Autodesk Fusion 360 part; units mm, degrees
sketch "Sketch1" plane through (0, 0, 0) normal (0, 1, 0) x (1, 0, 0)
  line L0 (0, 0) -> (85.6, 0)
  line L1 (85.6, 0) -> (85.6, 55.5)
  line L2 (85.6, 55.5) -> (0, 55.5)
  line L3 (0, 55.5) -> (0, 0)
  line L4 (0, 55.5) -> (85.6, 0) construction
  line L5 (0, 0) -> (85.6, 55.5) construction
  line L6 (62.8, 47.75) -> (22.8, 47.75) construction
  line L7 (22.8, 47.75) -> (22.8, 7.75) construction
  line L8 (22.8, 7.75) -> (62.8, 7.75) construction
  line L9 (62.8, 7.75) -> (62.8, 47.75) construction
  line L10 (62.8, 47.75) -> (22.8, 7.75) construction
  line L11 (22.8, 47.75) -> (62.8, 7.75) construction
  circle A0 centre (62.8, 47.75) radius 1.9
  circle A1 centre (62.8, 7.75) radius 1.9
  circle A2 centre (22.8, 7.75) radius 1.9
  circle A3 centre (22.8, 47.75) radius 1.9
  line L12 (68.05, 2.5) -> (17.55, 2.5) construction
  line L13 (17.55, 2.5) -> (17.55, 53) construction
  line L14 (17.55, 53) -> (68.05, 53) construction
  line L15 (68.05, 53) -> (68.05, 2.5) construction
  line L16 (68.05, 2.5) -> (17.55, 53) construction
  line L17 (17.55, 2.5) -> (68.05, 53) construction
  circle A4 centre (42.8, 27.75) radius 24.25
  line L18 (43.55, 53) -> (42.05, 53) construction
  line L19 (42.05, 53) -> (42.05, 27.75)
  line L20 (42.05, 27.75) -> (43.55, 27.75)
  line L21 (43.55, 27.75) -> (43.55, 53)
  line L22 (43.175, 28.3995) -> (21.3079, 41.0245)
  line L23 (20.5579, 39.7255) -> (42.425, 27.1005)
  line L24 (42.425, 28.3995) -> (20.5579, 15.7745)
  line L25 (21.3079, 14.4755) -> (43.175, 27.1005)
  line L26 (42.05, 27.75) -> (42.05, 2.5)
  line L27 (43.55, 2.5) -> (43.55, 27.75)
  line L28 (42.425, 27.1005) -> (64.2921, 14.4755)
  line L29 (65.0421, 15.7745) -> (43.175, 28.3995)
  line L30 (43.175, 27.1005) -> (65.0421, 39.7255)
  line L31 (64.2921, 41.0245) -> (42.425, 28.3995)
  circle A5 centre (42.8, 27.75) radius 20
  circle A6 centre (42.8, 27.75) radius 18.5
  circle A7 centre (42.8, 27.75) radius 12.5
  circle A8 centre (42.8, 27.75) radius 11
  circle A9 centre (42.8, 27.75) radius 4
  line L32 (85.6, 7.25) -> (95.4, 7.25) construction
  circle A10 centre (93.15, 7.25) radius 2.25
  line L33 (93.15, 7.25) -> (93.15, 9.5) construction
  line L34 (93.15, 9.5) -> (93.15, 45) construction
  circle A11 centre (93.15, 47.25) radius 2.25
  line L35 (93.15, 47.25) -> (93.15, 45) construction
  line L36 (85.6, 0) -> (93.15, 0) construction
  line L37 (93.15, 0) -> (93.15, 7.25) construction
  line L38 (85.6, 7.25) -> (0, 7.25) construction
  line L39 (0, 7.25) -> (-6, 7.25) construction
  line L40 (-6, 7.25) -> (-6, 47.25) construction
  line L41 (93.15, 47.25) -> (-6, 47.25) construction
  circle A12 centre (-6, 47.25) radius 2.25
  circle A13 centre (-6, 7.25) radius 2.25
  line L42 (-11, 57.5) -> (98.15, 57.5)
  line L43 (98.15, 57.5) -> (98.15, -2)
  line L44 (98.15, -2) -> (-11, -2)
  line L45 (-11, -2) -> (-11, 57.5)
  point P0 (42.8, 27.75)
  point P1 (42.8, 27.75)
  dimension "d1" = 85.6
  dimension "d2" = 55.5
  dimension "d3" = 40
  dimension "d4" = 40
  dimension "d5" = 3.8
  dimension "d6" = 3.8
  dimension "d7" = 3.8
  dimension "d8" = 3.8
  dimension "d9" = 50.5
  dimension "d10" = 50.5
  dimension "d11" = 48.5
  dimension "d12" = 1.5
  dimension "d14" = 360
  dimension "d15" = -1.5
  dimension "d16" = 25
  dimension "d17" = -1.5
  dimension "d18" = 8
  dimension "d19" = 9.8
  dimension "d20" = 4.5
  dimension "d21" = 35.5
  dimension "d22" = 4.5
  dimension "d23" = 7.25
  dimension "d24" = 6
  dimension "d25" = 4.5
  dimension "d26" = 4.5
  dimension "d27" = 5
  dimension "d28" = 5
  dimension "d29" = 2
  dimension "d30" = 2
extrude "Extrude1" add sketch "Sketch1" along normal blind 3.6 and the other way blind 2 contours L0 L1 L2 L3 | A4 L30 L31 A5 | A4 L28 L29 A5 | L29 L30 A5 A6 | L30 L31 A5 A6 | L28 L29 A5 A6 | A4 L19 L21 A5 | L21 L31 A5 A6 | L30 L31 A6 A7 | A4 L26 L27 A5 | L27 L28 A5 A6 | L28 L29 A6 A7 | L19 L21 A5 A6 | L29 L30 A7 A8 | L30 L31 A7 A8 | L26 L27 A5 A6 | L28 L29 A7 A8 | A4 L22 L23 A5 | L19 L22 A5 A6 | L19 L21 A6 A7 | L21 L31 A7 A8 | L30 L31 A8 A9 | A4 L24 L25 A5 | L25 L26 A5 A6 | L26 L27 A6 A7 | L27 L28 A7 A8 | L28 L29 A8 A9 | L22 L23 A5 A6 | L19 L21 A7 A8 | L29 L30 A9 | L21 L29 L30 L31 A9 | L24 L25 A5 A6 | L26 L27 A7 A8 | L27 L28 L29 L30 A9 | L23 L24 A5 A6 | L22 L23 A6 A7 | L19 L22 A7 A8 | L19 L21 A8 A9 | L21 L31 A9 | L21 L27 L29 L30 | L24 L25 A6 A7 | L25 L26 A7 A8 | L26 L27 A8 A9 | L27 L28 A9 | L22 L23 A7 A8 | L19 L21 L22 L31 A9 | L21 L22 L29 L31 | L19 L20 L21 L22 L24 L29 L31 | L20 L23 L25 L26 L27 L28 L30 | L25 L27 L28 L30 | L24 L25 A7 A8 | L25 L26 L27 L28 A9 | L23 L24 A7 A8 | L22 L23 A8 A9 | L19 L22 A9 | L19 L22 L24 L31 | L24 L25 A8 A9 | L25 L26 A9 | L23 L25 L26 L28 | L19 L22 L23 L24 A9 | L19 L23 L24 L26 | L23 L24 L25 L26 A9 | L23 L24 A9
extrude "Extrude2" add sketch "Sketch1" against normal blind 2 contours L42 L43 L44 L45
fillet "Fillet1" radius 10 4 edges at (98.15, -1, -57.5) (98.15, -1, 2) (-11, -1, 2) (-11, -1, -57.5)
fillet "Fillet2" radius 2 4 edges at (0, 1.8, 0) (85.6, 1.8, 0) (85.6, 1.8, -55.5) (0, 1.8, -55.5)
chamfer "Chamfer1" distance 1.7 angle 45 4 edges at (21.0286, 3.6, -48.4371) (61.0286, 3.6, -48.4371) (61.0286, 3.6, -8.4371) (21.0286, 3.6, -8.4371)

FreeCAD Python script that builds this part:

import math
import FreeCAD as App
import Part
import Sketcher
from FreeCAD import Vector
Q = App.Units.Quantity


def edges_at(feature, points):
    """Names of the edges that pass closest to the given points."""
    edges = feature.Shape.Edges
    near = lambda p: min(range(len(edges)), key=lambda i: edges[i].distToShape(Part.Vertex(*p))[0])
    return sorted({f"Edge{near(p) + 1}" for p in points})


def add_polygon(sketch, points):
    """Adds a closed chain of lines whose ends are joined by coincident constraints."""
    first, n = sketch.GeometryCount, len(points)
    for a, b in zip(points, points[1:] + points[:1]):
        sketch.addGeometry(Part.LineSegment(App.Vector(*a, 0), App.Vector(*b, 0)), False)
    for i in range(n):
        sketch.addConstraint(Sketcher.Constraint("Coincident", first + i, 2, first + (i + 1) % n, 1))

doc = App.newDocument("Part")
body = doc.addObject("PartDesign::Body", "Body")

# Sketch on XZ plane
sketch1 = body.newObject("Sketcher::SketchObject", "Sketch")
sketch1.AttachmentSupport = (doc.getObject("XZ_Plane"), [""])
sketch1.MapMode = "FlatFace"
add_polygon(sketch1, [(0, -55.5), (0, 0), (85.6, 0), (85.6, -55.5)])  # lines 0-3
sketch1.addGeometry(Part.Circle(Vector(22.8, -7.75, 0), Vector(0, 0, 1), 1.9), False)  # 4
sketch1.addGeometry(Part.Circle(Vector(62.8, -7.75, 0), Vector(0, 0, 1), 1.9), False)  # 5
sketch1.addGeometry(Part.ArcOfCircle(Part.Circle(Vector(42.8, -27.75, 0), Vector(0, 0, 1), 24.25), math.radians(-28.227769), math.radians(28.227769)), False)  # 6
sketch1.addGeometry(Part.LineSegment(Vector(64.166052, -16.280287, 0), Vector(60.48331, -18.406524, 0)), False)  # 7
sketch1.addGeometry(Part.ArcOfCircle(Part.Circle(Vector(42.8, -27.75, 0), Vector(0, 0, 1), 20), math.radians(-27.850999), math.radians(27.850999)), False)  # 8
sketch1.addGeometry(Part.LineSegment(Vector(60.48331, -37.093476, 0), Vector(64.166052, -39.219713, 0)), False)  # 9
sketch1.addGeometry(Part.ArcOfCircle(Part.Circle(Vector(42.8, -27.75, 0), Vector(0, 0, 1), 24.25), math.radians(-88.227683), math.radians(-31.772325)), False)  # 10
sketch1.addGeometry(Part.LineSegment(Vector(63.416068, -40.518722, 0), Vector(59.733325, -38.392485, 0)), False)  # 11
sketch1.addGeometry(Part.ArcOfCircle(Part.Circle(Vector(42.8, -27.75, 0), Vector(0, 0, 1), 20), math.radians(-87.850904), math.radians(-32.149095)), False)  # 12
sketch1.addGeometry(Part.LineSegment(Vector(43.55, -47.735933, 0), Vector(43.55, -51.988399, 0)), False)  # 13
sketch1.addGeometry(Part.ArcOfCircle(Part.Circle(Vector(42.8, -27.75, 0), Vector(0, 0, 1), 24.25), math.radians(-148.227675), math.radians(-91.772317)), False)  # 14
sketch1.addGeometry(Part.LineSegment(Vector(42.05, -51.988399, 0), Vector(42.05, -47.735933, 0)), False)  # 15
sketch1.addGeometry(Part.ArcOfCircle(Part.Circle(Vector(42.8, -27.75, 0), Vector(0, 0, 1), 20), math.radians(-147.850905), math.radians(-92.149096)), False)  # 16
sketch1.addGeometry(Part.LineSegment(Vector(25.866675, -38.392485, 0), Vector(22.183932, -40.518722, 0)), False)  # 17
sketch1.addGeometry(Part.ArcOfCircle(Part.Circle(Vector(42.8, -27.75, 0), Vector(0, 0, 1), 24.25), math.radians(151.772231), math.radians(208.227769)), False)  # 18
sketch1.addGeometry(Part.LineSegment(Vector(21.433948, -39.219713, 0), Vector(25.11669, -37.093476, 0)), False)  # 19
sketch1.addGeometry(Part.ArcOfCircle(Part.Circle(Vector(42.8, -27.75, 0), Vector(0, 0, 1), 20), math.radians(152.149001), math.radians(207.850999)), False)  # 20
sketch1.addGeometry(Part.LineSegment(Vector(25.11669, -18.406524, 0), Vector(21.433948, -16.280287, 0)), False)  # 21
sketch1.addGeometry(Part.ArcOfCircle(Part.Circle(Vector(42.8, -27.75, 0), Vector(0, 0, 1), 24.25), math.radians(91.772317), math.radians(148.227675)), False)  # 22
sketch1.addGeometry(Part.LineSegment(Vector(22.183932, -14.981278, 0), Vector(25.866675, -17.107515, 0)), False)  # 23
sketch1.addGeometry(Part.ArcOfCircle(Part.Circle(Vector(42.8, -27.75, 0), Vector(0, 0, 1), 20), math.radians(92.149096), math.radians(147.850905)), False)  # 24
sketch1.addGeometry(Part.LineSegment(Vector(42.05, -7.764067, 0), Vector(42.05, -3.511601, 0)), False)  # 25
sketch1.addGeometry(Part.ArcOfCircle(Part.Circle(Vector(42.8, -27.75, 0), Vector(0, 0, 1), 24.25), math.radians(31.772325), math.radians(88.227683)), False)  # 26
sketch1.addGeometry(Part.LineSegment(Vector(43.55, -3.511601, 0), Vector(43.55, -7.764067, 0)), False)  # 27
sketch1.addGeometry(Part.ArcOfCircle(Part.Circle(Vector(42.8, -27.75, 0), Vector(0, 0, 1), 20), math.radians(32.149095), math.radians(87.850904)), False)  # 28
sketch1.addGeometry(Part.LineSegment(Vector(59.733325, -17.107515, 0), Vector(63.416068, -14.981278, 0)), False)  # 29
sketch1.addGeometry(Part.Circle(Vector(22.8, -47.75, 0), Vector(0, 0, 1), 1.9), False)  # 30
sketch1.addGeometry(Part.Circle(Vector(62.8, -47.75, 0), Vector(0, 0, 1), 1.9), False)  # 31
sketch1.addGeometry(Part.ArcOfCircle(Part.Circle(Vector(42.8, -27.75, 0), Vector(0, 0, 1), 18.5), math.radians(-27.67666), math.radians(27.67666)), False)  # 32
sketch1.addGeometry(Part.LineSegment(Vector(59.183284, -19.157095, 0), Vector(53.980802, -22.160755, 0)), False)  # 33
sketch1.addGeometry(Part.ArcOfCircle(Part.Circle(Vector(42.8, -27.75, 0), Vector(0, 0, 1), 12.5), math.radians(-26.56031), math.radians(26.56031)), False)  # 34
sketch1.addGeometry(Part.LineSegment(Vector(53.980802, -33.339245, 0), Vector(59.183284, -36.342905, 0)), False)  # 35
sketch1.addGeometry(Part.LineSegment(Vector(58.433299, -37.641913, 0), Vector(53.230818, -34.638254, 0)), False)  # 36
sketch1.addGeometry(Part.ArcOfCircle(Part.Circle(Vector(42.8, -27.75, 0), Vector(0, 0, 1), 12.5), math.radians(-86.560187), math.radians(-33.439784)), False)  # 37
sketch1.addGeometry(Part.LineSegment(Vector(43.55, -40.22748, 0), Vector(43.55, -46.234791, 0)), False)  # 38
sketch1.addGeometry(Part.ArcOfCircle(Part.Circle(Vector(42.8, -27.75, 0), Vector(0, 0, 1), 18.5), math.radians(-87.676561), math.radians(-32.323434)), False)  # 39
sketch1.addGeometry(Part.LineSegment(Vector(42.05, -46.234791, 0), Vector(42.05, -40.22748, 0)), False)  # 40
sketch1.addGeometry(Part.ArcOfCircle(Part.Circle(Vector(42.8, -27.75, 0), Vector(0, 0, 1), 12.5), math.radians(-146.560216), math.radians(-93.439813)), False)  # 41
sketch1.addGeometry(Part.LineSegment(Vector(32.369182, -34.638254, 0), Vector(27.166701, -37.641913, 0)), False)  # 42
sketch1.addGeometry(Part.ArcOfCircle(Part.Circle(Vector(42.8, -27.75, 0), Vector(0, 0, 1), 18.5), math.radians(-147.676566), math.radians(-92.323439)), False)  # 43
sketch1.addGeometry(Part.LineSegment(Vector(26.416716, -36.342905, 0), Vector(31.619198, -33.339245, 0)), False)  # 44
sketch1.addGeometry(Part.ArcOfCircle(Part.Circle(Vector(42.8, -27.75, 0), Vector(0, 0, 1), 12.5), math.radians(153.43969), math.radians(206.56031)), False)  # 45
sketch1.addGeometry(Part.LineSegment(Vector(31.619198, -22.160755, 0), Vector(26.416716, -19.157095, 0)), False)  # 46
sketch1.addGeometry(Part.ArcOfCircle(Part.Circle(Vector(42.8, -27.75, 0), Vector(0, 0, 1), 18.5), math.radians(152.32334), math.radians(207.67666)), False)  # 47
sketch1.addGeometry(Part.ArcOfCircle(Part.Circle(Vector(42.8, -27.75, 0), Vector(0, 0, 1), 18.5), math.radians(92.323439), math.radians(147.676566)), False)  # 48
sketch1.addGeometry(Part.LineSegment(Vector(27.166701, -17.858087, 0), Vector(32.369182, -20.861746, 0)), False)  # 49
sketch1.addGeometry(Part.ArcOfCircle(Part.Circle(Vector(42.8, -27.75, 0), Vector(0, 0, 1), 12.5), math.radians(93.439813), math.radians(146.560216)), False)  # 50
sketch1.addGeometry(Part.LineSegment(Vector(42.05, -15.27252, 0), Vector(42.05, -9.265209, 0)), False)  # 51
sketch1.addGeometry(Part.ArcOfCircle(Part.Circle(Vector(42.8, -27.75, 0), Vector(0, 0, 1), 18.5), math.radians(32.323434), math.radians(87.676561)), False)  # 52
sketch1.addGeometry(Part.LineSegment(Vector(43.55, -9.265209, 0), Vector(43.55, -15.27252, 0)), False)  # 53
sketch1.addGeometry(Part.ArcOfCircle(Part.Circle(Vector(42.8, -27.75, 0), Vector(0, 0, 1), 12.5), math.radians(33.439784), math.radians(86.560187)), False)  # 54
sketch1.addGeometry(Part.LineSegment(Vector(53.230818, -20.861746, 0), Vector(58.433299, -17.858087, 0)), False)  # 55
sketch1.addGeometry(Part.ArcOfCircle(Part.Circle(Vector(42.8, -27.75, 0), Vector(0, 0, 1), 11), math.radians(-26.09057), math.radians(26.09057)), False)  # 56
sketch1.addGeometry(Part.LineSegment(Vector(52.6791, -22.912295, 0), Vector(46.577658, -26.434971, 0)), False)  # 57
sketch1.addGeometry(Part.ArcOfCircle(Part.Circle(Vector(42.8, -27.75, 0), Vector(0, 0, 1), 4), math.radians(-19.193365), math.radians(19.193365)), False)  # 58
sketch1.addGeometry(Part.LineSegment(Vector(46.577658, -29.065029, 0), Vector(52.6791, -32.587705, 0)), False)  # 59
sketch1.addGeometry(Part.LineSegment(Vector(51.929115, -33.886714, 0), Vector(45.827673, -30.364038, 0)), False)  # 60
sketch1.addGeometry(Part.ArcOfCircle(Part.Circle(Vector(42.8, -27.75, 0), Vector(0, 0, 1), 4), math.radians(-79.193077), math.radians(-40.806729)), False)  # 61
sketch1.addGeometry(Part.LineSegment(Vector(43.55, -31.679058, 0), Vector(43.55, -38.724402, 0)), False)  # 62
sketch1.addGeometry(Part.ArcOfCircle(Part.Circle(Vector(42.8, -27.75, 0), Vector(0, 0, 1), 11), math.radians(-86.090436), math.radians(-33.909524)), False)  # 63
sketch1.addGeometry(Part.LineSegment(Vector(42.05, -38.724402, 0), Vector(42.05, -31.679058, 0)), False)  # 64
sketch1.addGeometry(Part.ArcOfCircle(Part.Circle(Vector(42.8, -27.75, 0), Vector(0, 0, 1), 4), math.radians(-139.193271), math.radians(-100.806923)), False)  # 65
sketch1.addGeometry(Part.LineSegment(Vector(39.772327, -30.364038, 0), Vector(33.670885, -33.886714, 0)), False)  # 66
sketch1.addGeometry(Part.ArcOfCircle(Part.Circle(Vector(42.8, -27.75, 0), Vector(0, 0, 1), 11), math.radians(-146.090476), math.radians(-93.909564)), False)  # 67
sketch1.addGeometry(Part.LineSegment(Vector(32.9209, -32.587705, 0), Vector(39.022342, -29.065029, 0)), False)  # 68
sketch1.addGeometry(Part.ArcOfCircle(Part.Circle(Vector(42.8, -27.75, 0), Vector(0, 0, 1), 4), math.radians(160.806635), math.radians(199.193365)), False)  # 69
sketch1.addGeometry(Part.LineSegment(Vector(39.022342, -26.434971, 0), Vector(32.9209, -22.912295, 0)), False)  # 70
sketch1.addGeometry(Part.ArcOfCircle(Part.Circle(Vector(42.8, -27.75, 0), Vector(0, 0, 1), 11), math.radians(153.90943), math.radians(206.09057)), False)  # 71
sketch1.addGeometry(Part.ArcOfCircle(Part.Circle(Vector(42.8, -27.75, 0), Vector(0, 0, 1), 11), math.radians(93.909564), math.radians(146.090476)), False)  # 72
sketch1.addGeometry(Part.LineSegment(Vector(33.670885, -21.613286, 0), Vector(39.772327, -25.135962, 0)), False)  # 73
sketch1.addGeometry(Part.ArcOfCircle(Part.Circle(Vector(42.8, -27.75, 0), Vector(0, 0, 1), 4), math.radians(100.806923), math.radians(139.193271)), False)  # 74
sketch1.addGeometry(Part.LineSegment(Vector(42.05, -23.820942, 0), Vector(42.05, -16.775598, 0)), False)  # 75
sketch1.addGeometry(Part.ArcOfCircle(Part.Circle(Vector(42.8, -27.75, 0), Vector(0, 0, 1), 11), math.radians(33.909524), math.radians(86.090436)), False)  # 76
sketch1.addGeometry(Part.LineSegment(Vector(43.55, -16.775598, 0), Vector(43.55, -23.820942, 0)), False)  # 77
sketch1.addGeometry(Part.ArcOfCircle(Part.Circle(Vector(42.8, -27.75, 0), Vector(0, 0, 1), 4), math.radians(40.806729), math.radians(79.193077)), False)  # 78
sketch1.addGeometry(Part.LineSegment(Vector(45.827673, -25.135962, 0), Vector(51.929115, -21.613286, 0)), False)  # 79
sketch1.addConstraint(Sketcher.Constraint("Coincident", 6, 2, 7, 1))
sketch1.addConstraint(Sketcher.Constraint("Coincident", 7, 2, 8, 2))
sketch1.addConstraint(Sketcher.Constraint("Coincident", 8, 1, 9, 1))
sketch1.addConstraint(Sketcher.Constraint("Coincident", 9, 2, 6, 1))
sketch1.addConstraint(Sketcher.Constraint("Coincident", 10, 2, 11, 1))
sketch1.addConstraint(Sketcher.Constraint("Coincident", 11, 2, 12, 2))
sketch1.addConstraint(Sketcher.Constraint("Coincident", 12, 1, 13, 1))
sketch1.addConstraint(Sketcher.Constraint("Coincident", 13, 2, 10, 1))
sketch1.addConstraint(Sketcher.Constraint("Coincident", 14, 2, 15, 1))
sketch1.addConstraint(Sketcher.Constraint("Coincident", 15, 2, 16, 2))
sketch1.addConstraint(Sketcher.Constraint("Coincident", 16, 1, 17, 1))
sketch1.addConstraint(Sketcher.Constraint("Coincident", 17, 2, 14, 1))
sketch1.addConstraint(Sketcher.Constraint("Coincident", 18, 2, 19, 1))
sketch1.addConstraint(Sketcher.Constraint("Coincident", 19, 2, 20, 2))
sketch1.addConstraint(Sketcher.Constraint("Coincident", 20, 1, 21, 1))
sketch1.addConstraint(Sketcher.Constraint("Coincident", 21, 2, 18, 1))
sketch1.addConstraint(Sketcher.Constraint("Coincident", 22, 2, 23, 1))
sketch1.addConstraint(Sketcher.Constraint("Coincident", 23, 2, 24, 2))
sketch1.addConstraint(Sketcher.Constraint("Coincident", 24, 1, 25, 1))
sketch1.addConstraint(Sketcher.Constraint("Coincident", 25, 2, 22, 1))
sketch1.addConstraint(Sketcher.Constraint("Coincident", 26, 2, 27, 1))
sketch1.addConstraint(Sketcher.Constraint("Coincident", 27, 2, 28, 2))
sketch1.addConstraint(Sketcher.Constraint("Coincident", 28, 1, 29, 1))
sketch1.addConstraint(Sketcher.Constraint("Coincident", 29, 2, 26, 1))
sketch1.addConstraint(Sketcher.Constraint("Coincident", 32, 2, 33, 1))
sketch1.addConstraint(Sketcher.Constraint("Coincident", 33, 2, 34, 2))
sketch1.addConstraint(Sketcher.Constraint("Coincident", 34, 1, 35, 1))
sketch1.addConstraint(Sketcher.Constraint("Coincident", 35, 2, 32, 1))
sketch1.addConstraint(Sketcher.Constraint("Coincident", 36, 2, 37, 2))
sketch1.addConstraint(Sketcher.Constraint("Coincident", 37, 1, 38, 1))
sketch1.addConstraint(Sketcher.Constraint("Coincident", 38, 2, 39, 1))
sketch1.addConstraint(Sketcher.Constraint("Coincident", 39, 2, 36, 1))
sketch1.addConstraint(Sketcher.Constraint("Coincident", 40, 2, 41, 2))
sketch1.addConstraint(Sketcher.Constraint("Coincident", 41, 1, 42, 1))
sketch1.addConstraint(Sketcher.Constraint("Coincident", 42, 2, 43, 1))
sketch1.addConstraint(Sketcher.Constraint("Coincident", 43, 2, 40, 1))
sketch1.addConstraint(Sketcher.Constraint("Coincident", 44, 2, 45, 2))
sketch1.addConstraint(Sketcher.Constraint("Coincident", 45, 1, 46, 1))
sketch1.addConstraint(Sketcher.Constraint("Coincident", 46, 2, 47, 1))
sketch1.addConstraint(Sketcher.Constraint("Coincident", 47, 2, 44, 1))
sketch1.addConstraint(Sketcher.Constraint("Coincident", 48, 2, 49, 1))
sketch1.addConstraint(Sketcher.Constraint("Coincident", 49, 2, 50, 2))
sketch1.addConstraint(Sketcher.Constraint("Coincident", 50, 1, 51, 1))
sketch1.addConstraint(Sketcher.Constraint("Coincident", 51, 2, 48, 1))
sketch1.addConstraint(Sketcher.Constraint("Coincident", 52, 2, 53, 1))
sketch1.addConstraint(Sketcher.Constraint("Coincident", 53, 2, 54, 2))
sketch1.addConstraint(Sketcher.Constraint("Coincident", 54, 1, 55, 1))
sketch1.addConstraint(Sketcher.Constraint("Coincident", 55, 2, 52, 1))
sketch1.addConstraint(Sketcher.Constraint("Coincident", 56, 2, 57, 1))
sketch1.addConstraint(Sketcher.Constraint("Coincident", 57, 2, 58, 2))
sketch1.addConstraint(Sketcher.Constraint("Coincident", 58, 1, 59, 1))
sketch1.addConstraint(Sketcher.Constraint("Coincident", 59, 2, 56, 1))
sketch1.addConstraint(Sketcher.Constraint("Coincident", 60, 2, 61, 2))
sketch1.addConstraint(Sketcher.Constraint("Coincident", 61, 1, 62, 1))
sketch1.addConstraint(Sketcher.Constraint("Coincident", 62, 2, 63, 1))
sketch1.addConstraint(Sketcher.Constraint("Coincident", 63, 2, 60, 1))
sketch1.addConstraint(Sketcher.Constraint("Coincident", 64, 2, 65, 2))
sketch1.addConstraint(Sketcher.Constraint("Coincident", 65, 1, 66, 1))
sketch1.addConstraint(Sketcher.Constraint("Coincident", 66, 2, 67, 1))
sketch1.addConstraint(Sketcher.Constraint("Coincident", 67, 2, 64, 1))
sketch1.addConstraint(Sketcher.Constraint("Coincident", 68, 2, 69, 2))
sketch1.addConstraint(Sketcher.Constraint("Coincident", 69, 1, 70, 1))
sketch1.addConstraint(Sketcher.Constraint("Coincident", 70, 2, 71, 1))
sketch1.addConstraint(Sketcher.Constraint("Coincident", 71, 2, 68, 1))
sketch1.addConstraint(Sketcher.Constraint("Coincident", 72, 2, 73, 1))
sketch1.addConstraint(Sketcher.Constraint("Coincident", 73, 2, 74, 2))
sketch1.addConstraint(Sketcher.Constraint("Coincident", 74, 1, 75, 1))
sketch1.addConstraint(Sketcher.Constraint("Coincident", 75, 2, 72, 1))
sketch1.addConstraint(Sketcher.Constraint("Coincident", 76, 2, 77, 1))
sketch1.addConstraint(Sketcher.Constraint("Coincident", 77, 2, 78, 2))
sketch1.addConstraint(Sketcher.Constraint("Coincident", 78, 1, 79, 1))
sketch1.addConstraint(Sketcher.Constraint("Coincident", 79, 2, 76, 1))
sketch1.addConstraint(Sketcher.Constraint("Vertical", 0))
sketch1.addConstraint(Sketcher.Constraint("Horizontal", 1))
sketch1.addConstraint(Sketcher.Constraint("Vertical", 2))
sketch1.addConstraint(Sketcher.Constraint("Horizontal", 3))
sketch1.addConstraint(Sketcher.Constraint("Vertical", 13))
sketch1.addConstraint(Sketcher.Constraint("Vertical", 15))
sketch1.addConstraint(Sketcher.Constraint("Vertical", 25))
sketch1.addConstraint(Sketcher.Constraint("Vertical", 27))
sketch1.addConstraint(Sketcher.Constraint("Vertical", 38))
sketch1.addConstraint(Sketcher.Constraint("Vertical", 40))
sketch1.addConstraint(Sketcher.Constraint("Vertical", 51))
sketch1.addConstraint(Sketcher.Constraint("Vertical", 53))
sketch1.addConstraint(Sketcher.Constraint("Vertical", 62))
sketch1.addConstraint(Sketcher.Constraint("Vertical", 64))
sketch1.addConstraint(Sketcher.Constraint("Vertical", 75))
sketch1.addConstraint(Sketcher.Constraint("Vertical", 77))
sketch1.addConstraint(Sketcher.Constraint("Coincident", 0, 2, -1, 1))
sketch1.addConstraint(Sketcher.Constraint("Coincident", 8, 3, 6, 3))
sketch1.addConstraint(Sketcher.Constraint("Coincident", 10, 3, 6, 3))
sketch1.addConstraint(Sketcher.Constraint("Coincident", 12, 3, 6, 3))
sketch1.addConstraint(Sketcher.Constraint("Coincident", 14, 3, 6, 3))
sketch1.addConstraint(Sketcher.Constraint("Coincident", 16, 3, 6, 3))
sketch1.addConstraint(Sketcher.Constraint("Coincident", 18, 3, 6, 3))
sketch1.addConstraint(Sketcher.Constraint("Coincident", 20, 3, 6, 3))
sketch1.addConstraint(Sketcher.Constraint("Coincident", 22, 3, 6, 3))
sketch1.addConstraint(Sketcher.Constraint("Coincident", 24, 3, 6, 3))
sketch1.addConstraint(Sketcher.Constraint("Coincident", 26, 3, 6, 3))
sketch1.addConstraint(Sketcher.Constraint("Coincident", 28, 3, 6, 3))
sketch1.addConstraint(Sketcher.Constraint("Coincident", 32, 3, 6, 3))
sketch1.addConstraint(Sketcher.Constraint("Coincident", 34, 3, 6, 3))
sketch1.addConstraint(Sketcher.Constraint("Coincident", 37, 3, 6, 3))
sketch1.addConstraint(Sketcher.Constraint("Coincident", 39, 3, 6, 3))
sketch1.addConstraint(Sketcher.Constraint("Coincident", 41, 3, 6, 3))
sketch1.addConstraint(Sketcher.Constraint("Coincident", 43, 3, 6, 3))
sketch1.addConstraint(Sketcher.Constraint("Coincident", 45, 3, 6, 3))
sketch1.addConstraint(Sketcher.Constraint("Coincident", 47, 3, 6, 3))
sketch1.addConstraint(Sketcher.Constraint("Coincident", 48, 3, 6, 3))
sketch1.addConstraint(Sketcher.Constraint("Coincident", 50, 3, 6, 3))
sketch1.addConstraint(Sketcher.Constraint("Coincident", 52, 3, 6, 3))
sketch1.addConstraint(Sketcher.Constraint("Coincident", 54, 3, 6, 3))
sketch1.addConstraint(Sketcher.Constraint("Coincident", 56, 3, 6, 3))
sketch1.addConstraint(Sketcher.Constraint("Coincident", 58, 3, 6, 3))
sketch1.addConstraint(Sketcher.Constraint("Coincident", 61, 3, 6, 3))
sketch1.addConstraint(Sketcher.Constraint("Coincident", 63, 3, 6, 3))
sketch1.addConstraint(Sketcher.Constraint("Coincident", 65, 3, 6, 3))
sketch1.addConstraint(Sketcher.Constraint("Coincident", 67, 3, 6, 3))
sketch1.addConstraint(Sketcher.Constraint("Coincident", 69, 3, 6, 3))
sketch1.addConstraint(Sketcher.Constraint("Coincident", 71, 3, 6, 3))
sketch1.addConstraint(Sketcher.Constraint("Coincident", 72, 3, 6, 3))
sketch1.addConstraint(Sketcher.Constraint("Coincident", 74, 3, 6, 3))
sketch1.addConstraint(Sketcher.Constraint("Coincident", 76, 3, 6, 3))
sketch1.addConstraint(Sketcher.Constraint("Coincident", 78, 3, 6, 3))
sketch1.addConstraint(Sketcher.Constraint("Equal", 4, 5))
sketch1.addConstraint(Sketcher.Constraint("Equal", 6, 10))
sketch1.addConstraint(Sketcher.Constraint("Equal", 8, 12))
sketch1.addConstraint(Sketcher.Constraint("Equal", 10, 14))
sketch1.addConstraint(Sketcher.Constraint("Equal", 12, 16))
sketch1.addConstraint(Sketcher.Constraint("Equal", 14, 18))
sketch1.addConstraint(Sketcher.Constraint("Equal", 16, 20))
sketch1.addConstraint(Sketcher.Constraint("Equal", 18, 22))
sketch1.addConstraint(Sketcher.Constraint("Equal", 20, 24))
sketch1.addConstraint(Sketcher.Constraint("Equal", 22, 26))
sketch1.addConstraint(Sketcher.Constraint("Equal", 24, 28))
sketch1.addConstraint(Sketcher.Constraint("Equal", 5, 30))
sketch1.addConstraint(Sketcher.Constraint("Equal", 30, 31))
sketch1.addConstraint(Sketcher.Constraint("Equal", 34, 37))
sketch1.addConstraint(Sketcher.Constraint("Equal", 32, 39))
sketch1.addConstraint(Sketcher.Constraint("Equal", 37, 41))
sketch1.addConstraint(Sketcher.Constraint("Equal", 39, 43))
sketch1.addConstraint(Sketcher.Constraint("Equal", 41, 45))
sketch1.addConstraint(Sketcher.Constraint("Equal", 43, 47))
sketch1.addConstraint(Sketcher.Constraint("Equal", 47, 48))
sketch1.addConstraint(Sketcher.Constraint("Equal", 45, 50))
sketch1.addConstraint(Sketcher.Constraint("Equal", 48, 52))
sketch1.addConstraint(Sketcher.Constraint("Equal", 50, 54))
sketch1.addConstraint(Sketcher.Constraint("Equal", 58, 61))
sketch1.addConstraint(Sketcher.Constraint("Equal", 56, 63))
sketch1.addConstraint(Sketcher.Constraint("Equal", 61, 65))
sketch1.addConstraint(Sketcher.Constraint("Equal", 63, 67))
sketch1.addConstraint(Sketcher.Constraint("Equal", 65, 69))
sketch1.addConstraint(Sketcher.Constraint("Equal", 67, 71))
sketch1.addConstraint(Sketcher.Constraint("Equal", 71, 72))
sketch1.addConstraint(Sketcher.Constraint("Equal", 69, 74))
sketch1.addConstraint(Sketcher.Constraint("Equal", 72, 76))
sketch1.addConstraint(Sketcher.Constraint("Equal", 74, 78))
sketch1.addConstraint(Sketcher.Constraint("Parallel", 9, 11))
sketch1.addConstraint(Sketcher.Constraint("Parallel", 7, 17))
sketch1.addConstraint(Sketcher.Constraint("Parallel", 17, 19))
sketch1.addConstraint(Sketcher.Constraint("Parallel", 11, 21))
sketch1.addConstraint(Sketcher.Constraint("Parallel", 21, 23))
sketch1.addConstraint(Sketcher.Constraint("Parallel", 19, 29))
sketch1.addConstraint(Sketcher.Constraint("Parallel", 29, 33))
sketch1.addConstraint(Sketcher.Constraint("Parallel", 23, 35))
sketch1.addConstraint(Sketcher.Constraint("Parallel", 35, 36))
sketch1.addConstraint(Sketcher.Constraint("Parallel", 33, 42))
sketch1.addConstraint(Sketcher.Constraint("Parallel", 42, 44))
sketch1.addConstraint(Sketcher.Constraint("Parallel", 36, 46))
sketch1.addConstraint(Sketcher.Constraint("Parallel", 46, 49))
sketch1.addConstraint(Sketcher.Constraint("Parallel", 44, 55))
sketch1.addConstraint(Sketcher.Constraint("Parallel", 55, 57))
sketch1.addConstraint(Sketcher.Constraint("Parallel", 49, 59))
sketch1.addConstraint(Sketcher.Constraint("Parallel", 59, 60))
sketch1.addConstraint(Sketcher.Constraint("Parallel", 57, 66))
sketch1.addConstraint(Sketcher.Constraint("Parallel", 66, 68))
sketch1.addConstraint(Sketcher.Constraint("Parallel", 60, 70))
sketch1.addConstraint(Sketcher.Constraint("Parallel", 70, 73))
sketch1.addConstraint(Sketcher.Constraint("Parallel", 68, 79))
sketch1.addConstraint(Sketcher.Constraint("Horizontal", 4, 3, 5, 3))
sketch1.addConstraint(Sketcher.Constraint("Horizontal", 30, 3, 31, 3))
sketch1.addConstraint(Sketcher.Constraint("Horizontal", 13, 2, 14, 2))
sketch1.addConstraint(Sketcher.Constraint("Horizontal", 11, 2, 16, 1))
sketch1.addConstraint(Sketcher.Constraint("Horizontal", 10, 2, 17, 2))
sketch1.addConstraint(Sketcher.Constraint("Horizontal", 9, 2, 18, 2))
sketch1.addConstraint(Sketcher.Constraint("Horizontal", 7, 2, 20, 1))
sketch1.addConstraint(Sketcher.Constraint("Horizontal", 25, 2, 26, 2))
sketch1.addConstraint(Sketcher.Constraint("Horizontal", 23, 2, 28, 1))
sketch1.addConstraint(Sketcher.Constraint("Horizontal", 37, 1, 40, 2))
sketch1.addConstraint(Sketcher.Constraint("Horizontal", 36, 2, 41, 1))
sketch1.addConstraint(Sketcher.Constraint("Horizontal", 34, 1, 44, 2))
sketch1.addConstraint(Sketcher.Constraint("Horizontal", 33, 2, 45, 1))
sketch1.addConstraint(Sketcher.Constraint("Horizontal", 51, 2, 52, 2))
sketch1.addConstraint(Sketcher.Constraint("Horizontal", 49, 2, 54, 1))
sketch1.addConstraint(Sketcher.Constraint("Horizontal", 61, 1, 64, 2))
sketch1.addConstraint(Sketcher.Constraint("Horizontal", 60, 2, 65, 1))
sketch1.addConstraint(Sketcher.Constraint("Horizontal", 58, 1, 68, 2))
sketch1.addConstraint(Sketcher.Constraint("Horizontal", 57, 2, 69, 1))
sketch1.addConstraint(Sketcher.Constraint("Horizontal", 75, 2, 76, 2))
sketch1.addConstraint(Sketcher.Constraint("Horizontal", 73, 2, 78, 1))
sketch1.addConstraint(Sketcher.Constraint("Vertical", 4, 3, 30, 3))
sketch1.addConstraint(Sketcher.Constraint("Vertical", 5, 3, 31, 3))
sketch1.addConstraint(Sketcher.Constraint("Vertical", 7, 2, 8, 1))
sketch1.addConstraint(Sketcher.Constraint("Vertical", 17, 2, 22, 2))
sketch1.addConstraint(Sketcher.Constraint("Vertical", 15, 2, 24, 1))
sketch1.addConstraint(Sketcher.Constraint("Vertical", 33, 2, 34, 1))
sketch1.addConstraint(Sketcher.Constraint("Vertical", 27, 2, 37, 1))
sketch1.addConstraint(Sketcher.Constraint("Vertical", 42, 2, 48, 2))
sketch1.addConstraint(Sketcher.Constraint("Vertical", 43, 2, 50, 1))
sketch1.addConstraint(Sketcher.Constraint("Vertical", 57, 2, 58, 1))
sketch1.addConstraint(Sketcher.Constraint("Vertical", 53, 2, 61, 1))
sketch1.addConstraint(Sketcher.Constraint("Vertical", 66, 2, 72, 2))
sketch1.addConstraint(Sketcher.Constraint("Vertical", 67, 2, 74, 1))
sketch1.addConstraint(Sketcher.Constraint("Equal", 9, 11))
sketch1.addConstraint(Sketcher.Constraint("Equal", 35, 36))
sketch1.addConstraint(Sketcher.Constraint("Equal", 59, 60))
sketch1.addConstraint(Sketcher.Constraint("Radius", 8, 20.0))
sketch1.addConstraint(Sketcher.Constraint("Radius", 58, 4.0))
sketch1.addConstraint(Sketcher.Constraint("Diameter", 4, 3.8))
sketch1.addConstraint(Sketcher.Constraint("Radius", 34, 12.5))
sketch1.addConstraint(Sketcher.Constraint("Radius", 6, 24.25))
sketch1.addConstraint(Sketcher.Constraint("DistanceX", 1, 1, 1, 2, 85.6))
sketch1.addConstraint(Sketcher.Constraint("DistanceY", 0, 1, 0, 2, 55.5))
sketch1.addConstraint(Sketcher.Constraint("Radius", 56, 11.0))
sketch1.addConstraint(Sketcher.Constraint("Radius", 32, 18.5))
sketch1.addConstraint(Sketcher.Constraint("Angle", 7, Q("-150 deg")))
sketch1.addConstraint(Sketcher.Constraint("DistanceX", -1, 1, 4, 3, 22.8))
sketch1.addConstraint(Sketcher.Constraint("DistanceX", -1, 1, 5, 3, 62.8))
sketch1.addConstraint(Sketcher.Constraint("DistanceX", -1, 1, 6, 3, 42.8))
sketch1.addConstraint(Sketcher.Constraint("DistanceY", 4, 3, -1, 1, 7.75))
sketch1.addConstraint(Sketcher.Constraint("DistanceY", 6, 3, -1, 1, 27.75))
sketch1.addConstraint(Sketcher.Constraint("DistanceY", 30, 3, -1, 1, 47.75))
sketch1.addConstraint(Sketcher.Constraint("DistanceX", -1, 1, 12, 1, 43.55))
sketch1.addConstraint(Sketcher.Constraint("DistanceX", -1, 1, 6, 2, 64.166))
sketch1.addConstraint(Sketcher.Constraint("DistanceY", 32, 2, -1, 1, 19.157))
sketch1.addConstraint(Sketcher.Constraint("DistanceX", -1, 1, 56, 2, 52.679))
pad1 = body.newObject("PartDesign::Pad", "Pad")
pad1.Profile = sketch1
pad1.Type = "TwoLengths"
pad1.Length = 3.6
pad1.Length2 = 2
pad1.Reversed = True

# Sketch on XZ plane
sketch2 = body.newObject("Sketcher::SketchObject", "Sketch001")
sketch2.AttachmentSupport = (doc.getObject("XZ_Plane"), [""])
sketch2.MapMode = "FlatFace"
add_polygon(sketch2, [(98.15, -57.5), (-11, -57.5), (-11, 2), (98.15, 2)])  # lines 0-3
sketch2.addGeometry(Part.Circle(Vector(-6, -7.25, 0), Vector(0, 0, 1), 2.25), False)  # 4
sketch2.addGeometry(Part.Circle(Vector(93.15, -7.25, 0), Vector(0, 0, 1), 2.25), False)  # 5
add_polygon(sketch2, [(85.6, 0), (0, 0), (0, -55.5), (85.6, -55.5)])  # lines 6-9
sketch2.addGeometry(Part.Circle(Vector(-6, -47.25, 0), Vector(0, 0, 1), 2.25), False)  # 10
sketch2.addGeometry(Part.Circle(Vector(93.15, -47.25, 0), Vector(0, 0, 1), 2.25), False)  # 11
sketch2.addConstraint(Sketcher.Constraint("Horizontal", 0))
sketch2.addConstraint(Sketcher.Constraint("Vertical", 1))
sketch2.addConstraint(Sketcher.Constraint("Horizontal", 2))
sketch2.addConstraint(Sketcher.Constraint("Vertical", 3))
sketch2.addConstraint(Sketcher.Constraint("Horizontal", 6))
sketch2.addConstraint(Sketcher.Constraint("Vertical", 7))
sketch2.addConstraint(Sketcher.Constraint("Horizontal", 8))
sketch2.addConstraint(Sketcher.Constraint("Vertical", 9))
sketch2.addConstraint(Sketcher.Constraint("Coincident", 6, 2, -1, 1))
sketch2.addConstraint(Sketcher.Constraint("Equal", 4, 5))
sketch2.addConstraint(Sketcher.Constraint("Equal", 5, 10))
sketch2.addConstraint(Sketcher.Constraint("Equal", 10, 11))
sketch2.addConstraint(Sketcher.Constraint("Horizontal", 4, 3, 5, 3))
sketch2.addConstraint(Sketcher.Constraint("Horizontal", 10, 3, 11, 3))
sketch2.addConstraint(Sketcher.Constraint("Vertical", 4, 3, 10, 3))
sketch2.addConstraint(Sketcher.Constraint("Vertical", 5, 3, 11, 3))
sketch2.addConstraint(Sketcher.Constraint("Diameter", 4, 4.5))
sketch2.addConstraint(Sketcher.Constraint("DistanceX", 6, 2, 6, 1, 85.6))
sketch2.addConstraint(Sketcher.Constraint("DistanceY", 7, 2, 7, 1, 55.5))
sketch2.addConstraint(Sketcher.Constraint("DistanceX", 4, 3, -1, 1, 6.0))
sketch2.addConstraint(Sketcher.Constraint("DistanceY", -1, 1, 1, 2, 2.0))
sketch2.addConstraint(Sketcher.Constraint("DistanceY", 10, 3, 4, 3, 40.0))
sketch2.addConstraint(Sketcher.Constraint("DistanceX", 0, 2, 10, 3, 5.0))
sketch2.addConstraint(Sketcher.Constraint("DistanceX", 5, 3, 2, 2, 5.0))
sketch2.addConstraint(Sketcher.Constraint("DistanceY", 0, 2, 7, 2, 2.0))
sketch2.addConstraint(Sketcher.Constraint("DistanceY", 4, 3, -1, 1, 7.25))
sketch2.addConstraint(Sketcher.Constraint("DistanceX", 0, 2, 0, 1, 109.15))
pad2 = body.newObject("PartDesign::Pad", "Pad001")
pad2.Profile = sketch2
pad2.Length = 2
doc.recompute()

fillet = body.newObject("PartDesign::Fillet", "Fillet")
fillet.Base = (pad2, edges_at(pad2, [
    (98.15, -1, -57.5),
    (98.15, -1, 2),
    (-11, -1, 2),
    (-11, -1, -57.5),
]))
fillet.Radius = 10
doc.recompute()

fillet2 = body.newObject("PartDesign::Fillet", "Fillet001")
fillet2.Base = (fillet, edges_at(fillet, [
    (0, 1.8, 0),
    (85.6, 1.8, 0),
    (85.6, 1.8, -55.5),
    (0, 1.8, -55.5),
]))
fillet2.Radius = 2
doc.recompute()

chamfer = body.newObject("PartDesign::Chamfer", "Chamfer")
chamfer.Base = (fillet2, edges_at(fillet2, [
    (21.029, 3.6, -48.437),
    (61.029, 3.6, -48.437),
    (61.029, 3.6, -8.437),
    (21.029, 3.6, -8.437),
]))
chamfer.Size = 1.7

doc.recompute()
